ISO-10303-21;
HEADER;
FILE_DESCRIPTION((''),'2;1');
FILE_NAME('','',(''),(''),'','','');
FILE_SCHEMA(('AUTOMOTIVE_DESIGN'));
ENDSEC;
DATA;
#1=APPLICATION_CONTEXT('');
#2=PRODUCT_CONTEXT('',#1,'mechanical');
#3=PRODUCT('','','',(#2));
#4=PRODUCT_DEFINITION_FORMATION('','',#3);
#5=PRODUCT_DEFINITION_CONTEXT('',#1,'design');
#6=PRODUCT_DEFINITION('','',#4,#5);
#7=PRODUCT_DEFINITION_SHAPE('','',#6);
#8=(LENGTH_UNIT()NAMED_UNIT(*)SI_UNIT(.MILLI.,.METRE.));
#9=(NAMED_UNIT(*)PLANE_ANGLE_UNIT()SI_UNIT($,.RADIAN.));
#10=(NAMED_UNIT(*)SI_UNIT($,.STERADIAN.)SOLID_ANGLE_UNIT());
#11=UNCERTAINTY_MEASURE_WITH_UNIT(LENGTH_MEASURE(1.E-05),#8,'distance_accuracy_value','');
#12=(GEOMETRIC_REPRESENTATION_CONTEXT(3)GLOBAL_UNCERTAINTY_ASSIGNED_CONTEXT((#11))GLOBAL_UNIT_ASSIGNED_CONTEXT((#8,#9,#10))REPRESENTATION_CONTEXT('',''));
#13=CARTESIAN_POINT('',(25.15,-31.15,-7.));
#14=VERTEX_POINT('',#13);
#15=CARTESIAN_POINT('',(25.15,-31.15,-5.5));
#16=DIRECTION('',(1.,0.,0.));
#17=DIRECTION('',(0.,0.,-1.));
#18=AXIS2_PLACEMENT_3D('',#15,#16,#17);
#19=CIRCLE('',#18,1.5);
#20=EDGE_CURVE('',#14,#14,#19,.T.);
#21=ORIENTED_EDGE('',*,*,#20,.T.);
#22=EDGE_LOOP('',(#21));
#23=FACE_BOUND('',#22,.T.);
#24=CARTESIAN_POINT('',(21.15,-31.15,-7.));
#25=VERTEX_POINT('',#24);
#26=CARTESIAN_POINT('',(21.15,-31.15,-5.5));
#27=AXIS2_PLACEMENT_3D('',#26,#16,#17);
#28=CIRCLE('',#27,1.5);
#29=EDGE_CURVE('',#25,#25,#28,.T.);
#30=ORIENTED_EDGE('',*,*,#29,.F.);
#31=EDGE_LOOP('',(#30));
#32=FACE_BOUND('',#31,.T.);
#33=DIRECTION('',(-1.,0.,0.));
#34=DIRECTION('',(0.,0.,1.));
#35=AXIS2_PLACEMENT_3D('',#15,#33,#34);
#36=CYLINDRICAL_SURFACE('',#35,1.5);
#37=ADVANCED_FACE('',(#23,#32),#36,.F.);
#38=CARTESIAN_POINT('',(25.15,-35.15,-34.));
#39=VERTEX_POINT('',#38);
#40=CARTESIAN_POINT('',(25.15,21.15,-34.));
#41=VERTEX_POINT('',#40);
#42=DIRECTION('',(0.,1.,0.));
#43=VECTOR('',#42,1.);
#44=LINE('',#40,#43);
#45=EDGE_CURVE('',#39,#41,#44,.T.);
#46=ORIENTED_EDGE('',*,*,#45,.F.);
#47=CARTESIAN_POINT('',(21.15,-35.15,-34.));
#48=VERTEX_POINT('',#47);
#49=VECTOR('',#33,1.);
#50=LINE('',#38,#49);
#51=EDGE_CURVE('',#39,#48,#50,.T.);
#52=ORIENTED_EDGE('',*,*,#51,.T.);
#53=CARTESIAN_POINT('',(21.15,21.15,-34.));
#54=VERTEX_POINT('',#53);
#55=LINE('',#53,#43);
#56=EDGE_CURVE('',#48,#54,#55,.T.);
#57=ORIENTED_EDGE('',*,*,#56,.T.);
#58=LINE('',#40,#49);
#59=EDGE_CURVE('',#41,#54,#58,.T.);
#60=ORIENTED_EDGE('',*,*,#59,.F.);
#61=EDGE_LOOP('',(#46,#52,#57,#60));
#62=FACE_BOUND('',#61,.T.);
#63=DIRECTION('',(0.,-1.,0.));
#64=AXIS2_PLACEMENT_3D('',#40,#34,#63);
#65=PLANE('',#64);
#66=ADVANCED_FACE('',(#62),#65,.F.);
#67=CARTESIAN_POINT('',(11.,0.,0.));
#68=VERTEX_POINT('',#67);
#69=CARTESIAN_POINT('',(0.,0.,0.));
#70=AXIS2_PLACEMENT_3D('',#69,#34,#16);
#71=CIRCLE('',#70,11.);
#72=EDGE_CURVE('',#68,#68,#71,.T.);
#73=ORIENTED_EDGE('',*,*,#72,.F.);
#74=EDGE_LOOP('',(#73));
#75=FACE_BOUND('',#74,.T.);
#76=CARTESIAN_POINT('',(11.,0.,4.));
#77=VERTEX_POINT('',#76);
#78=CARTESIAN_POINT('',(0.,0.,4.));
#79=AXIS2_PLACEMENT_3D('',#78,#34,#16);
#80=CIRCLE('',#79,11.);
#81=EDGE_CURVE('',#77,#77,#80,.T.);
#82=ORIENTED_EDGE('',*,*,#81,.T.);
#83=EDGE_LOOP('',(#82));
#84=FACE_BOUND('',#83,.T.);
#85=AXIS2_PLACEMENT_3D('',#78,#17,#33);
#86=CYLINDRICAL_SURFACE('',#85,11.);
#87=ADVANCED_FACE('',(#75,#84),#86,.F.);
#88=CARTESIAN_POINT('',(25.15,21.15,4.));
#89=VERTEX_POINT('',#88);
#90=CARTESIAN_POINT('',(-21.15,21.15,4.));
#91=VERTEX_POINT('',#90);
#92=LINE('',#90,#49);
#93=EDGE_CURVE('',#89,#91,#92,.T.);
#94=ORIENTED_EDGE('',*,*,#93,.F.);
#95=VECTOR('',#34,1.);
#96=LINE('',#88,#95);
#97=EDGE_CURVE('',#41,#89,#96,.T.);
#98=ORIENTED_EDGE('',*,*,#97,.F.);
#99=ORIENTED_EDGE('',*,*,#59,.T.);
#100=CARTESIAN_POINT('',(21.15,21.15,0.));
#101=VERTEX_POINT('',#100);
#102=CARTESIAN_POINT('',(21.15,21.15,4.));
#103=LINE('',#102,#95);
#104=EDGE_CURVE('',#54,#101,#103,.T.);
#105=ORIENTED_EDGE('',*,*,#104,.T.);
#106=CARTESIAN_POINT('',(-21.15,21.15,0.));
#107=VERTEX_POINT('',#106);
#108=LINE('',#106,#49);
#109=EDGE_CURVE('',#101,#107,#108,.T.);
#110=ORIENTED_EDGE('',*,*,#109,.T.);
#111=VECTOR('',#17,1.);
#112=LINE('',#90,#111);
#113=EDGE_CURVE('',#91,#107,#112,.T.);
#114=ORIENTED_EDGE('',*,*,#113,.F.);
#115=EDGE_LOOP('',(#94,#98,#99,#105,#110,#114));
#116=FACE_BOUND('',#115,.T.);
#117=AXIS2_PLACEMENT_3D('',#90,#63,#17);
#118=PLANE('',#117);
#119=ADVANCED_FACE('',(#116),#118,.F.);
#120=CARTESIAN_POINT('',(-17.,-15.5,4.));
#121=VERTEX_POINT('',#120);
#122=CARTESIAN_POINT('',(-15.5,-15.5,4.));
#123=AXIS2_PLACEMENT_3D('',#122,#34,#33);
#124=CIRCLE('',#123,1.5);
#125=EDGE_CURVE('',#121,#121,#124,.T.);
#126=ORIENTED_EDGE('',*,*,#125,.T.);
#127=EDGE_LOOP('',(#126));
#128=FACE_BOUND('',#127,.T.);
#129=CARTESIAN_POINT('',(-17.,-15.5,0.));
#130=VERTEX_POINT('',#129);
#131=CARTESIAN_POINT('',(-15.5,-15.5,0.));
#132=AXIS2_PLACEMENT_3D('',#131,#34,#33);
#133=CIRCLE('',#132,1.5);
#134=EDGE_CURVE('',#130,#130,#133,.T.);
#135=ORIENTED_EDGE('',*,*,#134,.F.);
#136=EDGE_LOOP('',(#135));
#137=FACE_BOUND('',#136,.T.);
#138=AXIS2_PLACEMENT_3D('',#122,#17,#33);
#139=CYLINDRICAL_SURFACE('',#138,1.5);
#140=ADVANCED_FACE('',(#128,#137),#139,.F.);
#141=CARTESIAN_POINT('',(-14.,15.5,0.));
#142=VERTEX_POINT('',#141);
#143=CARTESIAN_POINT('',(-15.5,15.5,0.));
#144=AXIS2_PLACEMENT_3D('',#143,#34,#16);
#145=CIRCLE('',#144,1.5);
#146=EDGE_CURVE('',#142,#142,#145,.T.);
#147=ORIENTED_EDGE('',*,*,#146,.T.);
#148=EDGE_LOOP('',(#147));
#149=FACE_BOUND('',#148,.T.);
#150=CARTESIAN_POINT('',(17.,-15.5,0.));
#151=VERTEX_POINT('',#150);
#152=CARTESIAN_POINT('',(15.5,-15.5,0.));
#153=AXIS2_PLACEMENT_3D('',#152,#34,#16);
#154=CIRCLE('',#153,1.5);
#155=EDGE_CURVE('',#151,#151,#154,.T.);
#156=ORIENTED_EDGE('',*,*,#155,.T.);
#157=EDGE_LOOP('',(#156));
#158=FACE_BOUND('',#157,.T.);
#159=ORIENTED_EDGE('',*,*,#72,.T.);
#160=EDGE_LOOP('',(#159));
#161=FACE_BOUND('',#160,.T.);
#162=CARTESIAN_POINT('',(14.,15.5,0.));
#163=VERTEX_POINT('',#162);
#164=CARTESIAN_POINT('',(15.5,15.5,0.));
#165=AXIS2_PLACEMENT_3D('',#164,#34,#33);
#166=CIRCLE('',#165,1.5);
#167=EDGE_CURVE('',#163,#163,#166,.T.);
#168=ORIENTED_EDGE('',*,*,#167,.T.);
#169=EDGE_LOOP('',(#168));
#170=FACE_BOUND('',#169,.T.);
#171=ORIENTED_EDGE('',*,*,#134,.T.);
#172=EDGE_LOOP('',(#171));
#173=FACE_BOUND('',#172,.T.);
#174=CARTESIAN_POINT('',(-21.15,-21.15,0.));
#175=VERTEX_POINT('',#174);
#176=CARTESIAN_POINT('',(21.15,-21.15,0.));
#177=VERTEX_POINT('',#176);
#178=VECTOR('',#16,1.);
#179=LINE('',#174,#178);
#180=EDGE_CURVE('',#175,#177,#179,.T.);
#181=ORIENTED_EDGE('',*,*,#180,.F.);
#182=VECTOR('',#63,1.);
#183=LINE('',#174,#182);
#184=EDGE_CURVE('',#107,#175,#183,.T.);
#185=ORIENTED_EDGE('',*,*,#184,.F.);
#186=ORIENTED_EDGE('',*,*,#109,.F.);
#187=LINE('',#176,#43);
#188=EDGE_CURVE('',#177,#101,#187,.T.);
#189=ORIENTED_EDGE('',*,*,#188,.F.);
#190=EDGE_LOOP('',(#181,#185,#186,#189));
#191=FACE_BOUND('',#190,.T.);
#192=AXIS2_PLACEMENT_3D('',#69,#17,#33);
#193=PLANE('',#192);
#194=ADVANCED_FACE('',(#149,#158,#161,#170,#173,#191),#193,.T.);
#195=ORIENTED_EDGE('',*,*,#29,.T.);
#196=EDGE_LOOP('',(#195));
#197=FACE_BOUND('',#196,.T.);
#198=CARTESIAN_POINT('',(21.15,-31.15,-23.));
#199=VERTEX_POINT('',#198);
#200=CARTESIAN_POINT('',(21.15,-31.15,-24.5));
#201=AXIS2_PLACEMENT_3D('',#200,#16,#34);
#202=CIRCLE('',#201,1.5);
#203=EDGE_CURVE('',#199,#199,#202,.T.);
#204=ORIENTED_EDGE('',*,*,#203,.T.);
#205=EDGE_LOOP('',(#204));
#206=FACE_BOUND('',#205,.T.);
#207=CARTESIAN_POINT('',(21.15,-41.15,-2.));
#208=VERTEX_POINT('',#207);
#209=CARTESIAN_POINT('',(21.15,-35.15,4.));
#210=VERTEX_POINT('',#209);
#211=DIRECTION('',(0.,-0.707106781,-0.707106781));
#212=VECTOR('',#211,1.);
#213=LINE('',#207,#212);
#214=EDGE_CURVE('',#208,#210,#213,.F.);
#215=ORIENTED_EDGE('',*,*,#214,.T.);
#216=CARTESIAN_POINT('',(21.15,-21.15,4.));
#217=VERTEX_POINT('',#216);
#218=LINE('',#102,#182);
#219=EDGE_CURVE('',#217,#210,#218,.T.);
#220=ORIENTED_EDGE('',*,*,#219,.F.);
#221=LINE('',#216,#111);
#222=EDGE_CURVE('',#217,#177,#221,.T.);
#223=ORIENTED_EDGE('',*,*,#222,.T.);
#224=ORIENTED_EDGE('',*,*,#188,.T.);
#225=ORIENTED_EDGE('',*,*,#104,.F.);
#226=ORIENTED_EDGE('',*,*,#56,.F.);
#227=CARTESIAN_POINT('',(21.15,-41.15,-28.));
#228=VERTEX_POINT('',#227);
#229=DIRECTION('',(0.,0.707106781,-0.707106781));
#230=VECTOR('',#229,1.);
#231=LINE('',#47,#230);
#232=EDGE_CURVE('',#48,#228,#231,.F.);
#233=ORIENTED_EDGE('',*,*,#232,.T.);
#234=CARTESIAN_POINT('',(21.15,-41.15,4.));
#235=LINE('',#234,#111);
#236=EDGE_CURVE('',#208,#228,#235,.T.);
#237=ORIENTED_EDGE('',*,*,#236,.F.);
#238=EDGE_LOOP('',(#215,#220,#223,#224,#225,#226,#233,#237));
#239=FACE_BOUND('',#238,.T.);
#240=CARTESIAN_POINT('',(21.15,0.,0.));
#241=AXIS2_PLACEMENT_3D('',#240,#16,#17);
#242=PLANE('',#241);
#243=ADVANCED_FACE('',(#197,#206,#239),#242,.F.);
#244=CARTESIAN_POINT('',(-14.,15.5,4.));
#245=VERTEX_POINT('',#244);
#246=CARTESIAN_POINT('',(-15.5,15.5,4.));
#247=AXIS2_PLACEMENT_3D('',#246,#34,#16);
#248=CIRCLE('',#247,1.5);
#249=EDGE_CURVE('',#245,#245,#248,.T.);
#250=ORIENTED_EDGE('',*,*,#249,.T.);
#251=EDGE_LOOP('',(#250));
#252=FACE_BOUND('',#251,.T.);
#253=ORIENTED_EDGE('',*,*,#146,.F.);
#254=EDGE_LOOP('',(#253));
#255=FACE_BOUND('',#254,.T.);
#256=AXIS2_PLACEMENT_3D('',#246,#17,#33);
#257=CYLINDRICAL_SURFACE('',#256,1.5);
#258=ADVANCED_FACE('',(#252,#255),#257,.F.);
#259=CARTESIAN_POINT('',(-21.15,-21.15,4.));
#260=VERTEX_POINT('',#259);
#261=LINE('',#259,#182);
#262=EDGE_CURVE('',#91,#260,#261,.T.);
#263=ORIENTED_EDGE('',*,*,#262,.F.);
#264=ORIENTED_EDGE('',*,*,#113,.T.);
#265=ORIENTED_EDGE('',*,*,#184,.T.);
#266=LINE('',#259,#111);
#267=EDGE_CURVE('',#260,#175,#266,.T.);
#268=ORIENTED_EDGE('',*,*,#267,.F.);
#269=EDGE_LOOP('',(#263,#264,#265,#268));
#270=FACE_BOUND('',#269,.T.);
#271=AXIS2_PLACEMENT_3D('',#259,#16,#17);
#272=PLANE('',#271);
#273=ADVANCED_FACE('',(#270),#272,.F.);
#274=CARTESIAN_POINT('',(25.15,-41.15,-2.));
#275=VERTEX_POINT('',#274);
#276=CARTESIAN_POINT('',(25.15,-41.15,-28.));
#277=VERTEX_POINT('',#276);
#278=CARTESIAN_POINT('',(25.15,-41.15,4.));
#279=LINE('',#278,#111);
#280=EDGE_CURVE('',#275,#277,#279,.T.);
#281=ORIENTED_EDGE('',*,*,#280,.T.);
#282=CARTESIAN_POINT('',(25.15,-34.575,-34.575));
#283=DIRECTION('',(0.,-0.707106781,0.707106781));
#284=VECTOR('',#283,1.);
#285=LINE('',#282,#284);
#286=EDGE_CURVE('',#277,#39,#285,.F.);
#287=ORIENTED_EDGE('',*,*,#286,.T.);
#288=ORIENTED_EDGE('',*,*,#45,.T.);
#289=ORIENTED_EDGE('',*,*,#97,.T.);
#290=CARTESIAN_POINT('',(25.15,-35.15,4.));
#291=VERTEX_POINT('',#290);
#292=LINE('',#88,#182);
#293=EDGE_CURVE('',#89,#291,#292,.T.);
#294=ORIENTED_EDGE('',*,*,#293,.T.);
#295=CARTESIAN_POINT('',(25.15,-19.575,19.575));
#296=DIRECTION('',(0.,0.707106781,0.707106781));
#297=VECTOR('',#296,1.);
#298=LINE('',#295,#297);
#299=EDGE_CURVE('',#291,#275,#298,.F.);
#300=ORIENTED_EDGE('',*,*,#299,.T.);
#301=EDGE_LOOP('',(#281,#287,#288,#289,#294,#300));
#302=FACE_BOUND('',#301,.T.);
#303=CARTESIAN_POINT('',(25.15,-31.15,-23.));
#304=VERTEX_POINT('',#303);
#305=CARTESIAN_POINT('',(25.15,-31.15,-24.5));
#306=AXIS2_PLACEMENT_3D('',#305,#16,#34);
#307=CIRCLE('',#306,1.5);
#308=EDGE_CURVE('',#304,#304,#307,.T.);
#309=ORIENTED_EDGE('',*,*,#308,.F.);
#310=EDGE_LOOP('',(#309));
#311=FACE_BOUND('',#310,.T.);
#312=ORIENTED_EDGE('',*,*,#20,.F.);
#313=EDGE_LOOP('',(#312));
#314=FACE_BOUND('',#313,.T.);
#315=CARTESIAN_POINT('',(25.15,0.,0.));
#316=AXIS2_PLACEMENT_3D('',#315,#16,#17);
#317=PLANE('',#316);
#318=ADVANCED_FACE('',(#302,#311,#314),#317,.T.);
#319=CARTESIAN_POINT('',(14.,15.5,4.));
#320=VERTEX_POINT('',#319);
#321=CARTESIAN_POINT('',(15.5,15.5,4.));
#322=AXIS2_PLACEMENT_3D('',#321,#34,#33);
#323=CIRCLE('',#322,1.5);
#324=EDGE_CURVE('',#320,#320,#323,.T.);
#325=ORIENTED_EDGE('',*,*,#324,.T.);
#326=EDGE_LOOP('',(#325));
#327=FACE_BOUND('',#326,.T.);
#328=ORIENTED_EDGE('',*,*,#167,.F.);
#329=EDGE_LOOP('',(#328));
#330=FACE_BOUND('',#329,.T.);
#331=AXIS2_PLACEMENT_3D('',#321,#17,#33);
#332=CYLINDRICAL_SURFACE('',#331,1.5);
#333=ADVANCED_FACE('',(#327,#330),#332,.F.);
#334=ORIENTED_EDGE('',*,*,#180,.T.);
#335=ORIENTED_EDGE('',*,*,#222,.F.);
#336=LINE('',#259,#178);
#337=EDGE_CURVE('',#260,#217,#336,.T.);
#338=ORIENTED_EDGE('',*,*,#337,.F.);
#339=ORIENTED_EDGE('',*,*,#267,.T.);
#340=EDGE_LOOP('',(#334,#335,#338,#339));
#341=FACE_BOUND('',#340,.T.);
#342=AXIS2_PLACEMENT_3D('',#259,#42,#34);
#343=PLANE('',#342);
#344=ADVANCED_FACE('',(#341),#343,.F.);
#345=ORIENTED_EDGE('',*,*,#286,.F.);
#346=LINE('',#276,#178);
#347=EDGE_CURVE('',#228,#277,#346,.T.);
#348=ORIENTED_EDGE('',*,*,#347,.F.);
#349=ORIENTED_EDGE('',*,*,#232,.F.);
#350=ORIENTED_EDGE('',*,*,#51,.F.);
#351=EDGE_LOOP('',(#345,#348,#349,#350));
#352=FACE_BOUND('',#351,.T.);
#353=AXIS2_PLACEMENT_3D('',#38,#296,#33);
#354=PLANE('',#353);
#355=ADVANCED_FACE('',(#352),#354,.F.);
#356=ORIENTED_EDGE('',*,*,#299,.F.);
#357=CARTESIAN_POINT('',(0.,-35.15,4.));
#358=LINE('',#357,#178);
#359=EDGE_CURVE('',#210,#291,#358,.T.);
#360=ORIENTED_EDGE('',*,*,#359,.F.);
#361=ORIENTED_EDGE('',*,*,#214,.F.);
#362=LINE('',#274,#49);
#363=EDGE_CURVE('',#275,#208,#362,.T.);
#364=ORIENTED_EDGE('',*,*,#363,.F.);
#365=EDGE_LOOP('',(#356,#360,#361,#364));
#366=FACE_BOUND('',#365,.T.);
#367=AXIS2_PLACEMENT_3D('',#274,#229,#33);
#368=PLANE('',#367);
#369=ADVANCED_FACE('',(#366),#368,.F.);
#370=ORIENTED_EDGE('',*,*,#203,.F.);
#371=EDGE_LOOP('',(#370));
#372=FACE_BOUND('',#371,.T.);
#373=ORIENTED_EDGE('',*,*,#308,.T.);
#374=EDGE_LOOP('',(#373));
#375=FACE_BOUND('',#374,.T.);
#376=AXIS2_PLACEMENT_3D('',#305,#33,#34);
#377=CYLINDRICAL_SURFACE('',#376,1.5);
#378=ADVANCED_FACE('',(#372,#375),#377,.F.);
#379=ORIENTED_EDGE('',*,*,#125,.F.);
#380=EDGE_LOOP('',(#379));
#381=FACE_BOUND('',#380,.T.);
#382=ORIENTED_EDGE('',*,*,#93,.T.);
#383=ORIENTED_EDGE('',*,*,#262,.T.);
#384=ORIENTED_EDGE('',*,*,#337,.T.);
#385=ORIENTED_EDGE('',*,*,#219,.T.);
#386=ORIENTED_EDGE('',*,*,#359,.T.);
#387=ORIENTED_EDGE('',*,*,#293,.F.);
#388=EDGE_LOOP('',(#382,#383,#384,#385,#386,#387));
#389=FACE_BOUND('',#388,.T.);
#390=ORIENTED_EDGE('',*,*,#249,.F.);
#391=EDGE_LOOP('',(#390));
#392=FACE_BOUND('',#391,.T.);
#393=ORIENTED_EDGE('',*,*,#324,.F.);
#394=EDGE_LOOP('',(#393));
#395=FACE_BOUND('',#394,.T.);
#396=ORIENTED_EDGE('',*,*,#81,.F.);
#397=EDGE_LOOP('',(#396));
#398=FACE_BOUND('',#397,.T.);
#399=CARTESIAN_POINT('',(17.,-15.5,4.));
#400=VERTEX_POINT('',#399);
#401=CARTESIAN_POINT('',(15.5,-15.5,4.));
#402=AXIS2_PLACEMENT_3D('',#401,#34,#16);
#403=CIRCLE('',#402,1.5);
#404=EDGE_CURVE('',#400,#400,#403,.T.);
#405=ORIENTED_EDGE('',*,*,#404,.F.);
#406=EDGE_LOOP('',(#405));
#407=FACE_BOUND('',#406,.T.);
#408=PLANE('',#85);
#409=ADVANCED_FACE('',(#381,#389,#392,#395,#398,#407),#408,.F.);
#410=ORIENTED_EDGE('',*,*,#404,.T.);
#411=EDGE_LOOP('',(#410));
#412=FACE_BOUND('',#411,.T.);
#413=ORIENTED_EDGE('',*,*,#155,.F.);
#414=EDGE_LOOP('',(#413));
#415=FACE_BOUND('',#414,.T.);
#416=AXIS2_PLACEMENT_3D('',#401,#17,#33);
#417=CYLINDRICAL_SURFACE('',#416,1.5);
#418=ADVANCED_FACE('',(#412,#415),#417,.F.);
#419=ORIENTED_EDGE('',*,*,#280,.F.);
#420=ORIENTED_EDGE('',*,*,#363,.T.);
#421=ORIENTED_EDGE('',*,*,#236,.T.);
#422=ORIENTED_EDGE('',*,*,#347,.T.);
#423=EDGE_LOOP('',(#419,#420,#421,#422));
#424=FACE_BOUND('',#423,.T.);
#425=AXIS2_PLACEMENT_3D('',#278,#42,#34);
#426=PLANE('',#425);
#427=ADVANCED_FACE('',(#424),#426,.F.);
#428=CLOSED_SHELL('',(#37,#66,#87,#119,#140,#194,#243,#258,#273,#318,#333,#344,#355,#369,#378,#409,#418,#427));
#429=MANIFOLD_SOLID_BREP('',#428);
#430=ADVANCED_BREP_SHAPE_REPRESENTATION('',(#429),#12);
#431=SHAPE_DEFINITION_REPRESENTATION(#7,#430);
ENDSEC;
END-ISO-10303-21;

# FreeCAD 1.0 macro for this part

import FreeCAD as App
import Part
import Sketcher

V = App.Vector
Q = App.Units.Quantity


def edges_at(feature, points):
    """Names of the edges that pass closest to the given points."""
    edges = feature.Shape.Edges
    near = lambda p: min(range(len(edges)), key=lambda i: edges[i].distToShape(Part.Vertex(*p))[0])
    return sorted({f"Edge{near(p) + 1}" for p in points})

doc = App.newDocument("Part")
body = doc.addObject("PartDesign::Body", "Body")

# Sketch on XY plane
sketch1 = body.newObject("Sketcher::SketchObject", "Sketch")
sketch1.AttachmentSupport = (doc.getObject("XY_Plane"), [""])
sketch1.MapMode = "FlatFace"
sketch1.addGeometry([
    Part.LineSegment(V(-21.1, 21.1, 0), V(-21.1, -21.1, 0)),  # 0
    Part.LineSegment(V(-21.1, -21.1, 0), V(21.1, -21.1, 0)),  # 1
    Part.LineSegment(V(21.1, -21.1, 0), V(21.1, 21.1, 0)),  # 2
    Part.LineSegment(V(21.1, 21.1, 0), V(-21.1, 21.1, 0)),  # 3
    Part.Circle(V(-15.5, -15.5, 0), V(0, 0, 1), 1.5),  # 4
    Part.Circle(V(15.5, -15.5, 0), V(0, 0, 1), 1.5),  # 5
    Part.Circle(V(-15.5, 15.5, 0), V(0, 0, 1), 1.5),  # 6
    Part.Circle(V(0, 0, 0), V(0, 0, 1), 11),  # 7
    Part.Circle(V(15.5, 15.5, 0), V(0, 0, 1), 1.5),  # 8
], False)
sketch1.addConstraint([
    Sketcher.Constraint("Coincident", 0, 2, 1, 1),
    Sketcher.Constraint("Coincident", 1, 2, 2, 1),
    Sketcher.Constraint("Coincident", 2, 2, 3, 1),
    Sketcher.Constraint("Coincident", 3, 2, 0, 1),
    Sketcher.Constraint("Vertical", 0),
    Sketcher.Constraint("Horizontal", 1),
    Sketcher.Constraint("Vertical", 2),
    Sketcher.Constraint("Horizontal", 3),
    Sketcher.Constraint("Coincident", 7, 3, -1, 1),
    Sketcher.Constraint("Equal", 4, 5),
    Sketcher.Constraint("Equal", 5, 6),
    Sketcher.Constraint("Equal", 6, 8),
    Sketcher.Constraint("Symmetric", 5, 3, 6, 3, -1, 1),
    Sketcher.Constraint("Symmetric", 4, 3, 8, 3, -1, 1),
    Sketcher.Constraint("Symmetric", 0, 2, 2, 2, -1, 1),
    Sketcher.Constraint("Symmetric", 4, 3, 5, 3, -2),
    Sketcher.Constraint("Equal", 3, 0),
    Sketcher.Constraint("Diameter", 4, Q("3 mm")),
    Sketcher.Constraint("Diameter", 7, Q("22 mm")),
    Sketcher.Constraint("DistanceX", 1, 1, 1, 2, Q("42.3 mm")),
    Sketcher.Constraint("DistanceX", 4, 3, 5, 3, Q("31 mm")),
    Sketcher.Constraint("DistanceY", 4, 3, 6, 3, Q("31 mm")),
])
pad1 = body.newObject("PartDesign::Pad", "Pad")
pad1.Profile = sketch1
pad1.Length = 4

# Sketch on YZ plane
sketch2 = body.newObject("Sketcher::SketchObject", "Sketch001")
sketch2.AttachmentSupport = (doc.getObject("YZ_Plane"), [""])
sketch2.MapMode = "FlatFace"
sketch2.AttachmentOffset = App.Placement(V(0, 0, 21.15), App.Rotation())
sketch2.addGeometry([
    Part.LineSegment(V(21.1, 4, 0), V(-41.1, 4, 0)),  # 0
    Part.LineSegment(V(-41.1, 4, 0), V(-41.1, -34, 0)),  # 1
    Part.LineSegment(V(-41.1, -34, 0), V(21.1, -34, 0)),  # 2
    Part.LineSegment(V(21.1, -34, 0), V(21.1, 4, 0)),  # 3
    Part.Circle(V(-31.1, -5.5, 0), V(0, 0, 1), 1.5),  # 4
    Part.Circle(V(-31.1, -24.5, 0), V(0, 0, 1), 1.5),  # 5
], False)
sketch2.addConstraint([
    Sketcher.Constraint("Coincident", 0, 2, 1, 1),
    Sketcher.Constraint("Coincident", 1, 2, 2, 1),
    Sketcher.Constraint("Coincident", 2, 2, 3, 1),
    Sketcher.Constraint("Coincident", 3, 2, 0, 1),
    Sketcher.Constraint("Horizontal", 0),
    Sketcher.Constraint("Vertical", 1),
    Sketcher.Constraint("Horizontal", 2),
    Sketcher.Constraint("Vertical", 3),
    Sketcher.Constraint("Equal", 4, 5),
    Sketcher.Constraint("Vertical", 4, 3, 5, 3),
    Sketcher.Constraint("Diameter", 4, Q("3 mm")),
    Sketcher.Constraint("DistanceY", 1, 2, 1, 1, Q("38 mm")),
    Sketcher.Constraint("DistanceX", 0, 2, 0, 1, Q("62.3 mm")),
    Sketcher.Constraint("DistanceY", -1, 1, 0, 2, Q("4 mm")),
    Sketcher.Constraint("DistanceY", 5, 3, 4, 3, Q("19 mm")),
    Sketcher.Constraint("DistanceX", 0, 2, 4, 3, Q("10 mm")),
    Sketcher.Constraint("DistanceY", 4, 3, -1, 1, Q("5.5 mm")),
    Sketcher.Constraint("DistanceX", 4, 3, -1, 1, Q("31.15 mm")),
])
pad2 = body.newObject("PartDesign::Pad", "Pad001")
pad2.Profile = sketch2
pad2.Length = 4
doc.recompute()

chamfer = body.newObject("PartDesign::Chamfer", "Chamfer")
chamfer.Base = (pad2, edges_at(pad2, [(23.15, -41.15, 4), (23.15, -41.15, -34)]))
chamfer.Size = 6

doc.recompute()
